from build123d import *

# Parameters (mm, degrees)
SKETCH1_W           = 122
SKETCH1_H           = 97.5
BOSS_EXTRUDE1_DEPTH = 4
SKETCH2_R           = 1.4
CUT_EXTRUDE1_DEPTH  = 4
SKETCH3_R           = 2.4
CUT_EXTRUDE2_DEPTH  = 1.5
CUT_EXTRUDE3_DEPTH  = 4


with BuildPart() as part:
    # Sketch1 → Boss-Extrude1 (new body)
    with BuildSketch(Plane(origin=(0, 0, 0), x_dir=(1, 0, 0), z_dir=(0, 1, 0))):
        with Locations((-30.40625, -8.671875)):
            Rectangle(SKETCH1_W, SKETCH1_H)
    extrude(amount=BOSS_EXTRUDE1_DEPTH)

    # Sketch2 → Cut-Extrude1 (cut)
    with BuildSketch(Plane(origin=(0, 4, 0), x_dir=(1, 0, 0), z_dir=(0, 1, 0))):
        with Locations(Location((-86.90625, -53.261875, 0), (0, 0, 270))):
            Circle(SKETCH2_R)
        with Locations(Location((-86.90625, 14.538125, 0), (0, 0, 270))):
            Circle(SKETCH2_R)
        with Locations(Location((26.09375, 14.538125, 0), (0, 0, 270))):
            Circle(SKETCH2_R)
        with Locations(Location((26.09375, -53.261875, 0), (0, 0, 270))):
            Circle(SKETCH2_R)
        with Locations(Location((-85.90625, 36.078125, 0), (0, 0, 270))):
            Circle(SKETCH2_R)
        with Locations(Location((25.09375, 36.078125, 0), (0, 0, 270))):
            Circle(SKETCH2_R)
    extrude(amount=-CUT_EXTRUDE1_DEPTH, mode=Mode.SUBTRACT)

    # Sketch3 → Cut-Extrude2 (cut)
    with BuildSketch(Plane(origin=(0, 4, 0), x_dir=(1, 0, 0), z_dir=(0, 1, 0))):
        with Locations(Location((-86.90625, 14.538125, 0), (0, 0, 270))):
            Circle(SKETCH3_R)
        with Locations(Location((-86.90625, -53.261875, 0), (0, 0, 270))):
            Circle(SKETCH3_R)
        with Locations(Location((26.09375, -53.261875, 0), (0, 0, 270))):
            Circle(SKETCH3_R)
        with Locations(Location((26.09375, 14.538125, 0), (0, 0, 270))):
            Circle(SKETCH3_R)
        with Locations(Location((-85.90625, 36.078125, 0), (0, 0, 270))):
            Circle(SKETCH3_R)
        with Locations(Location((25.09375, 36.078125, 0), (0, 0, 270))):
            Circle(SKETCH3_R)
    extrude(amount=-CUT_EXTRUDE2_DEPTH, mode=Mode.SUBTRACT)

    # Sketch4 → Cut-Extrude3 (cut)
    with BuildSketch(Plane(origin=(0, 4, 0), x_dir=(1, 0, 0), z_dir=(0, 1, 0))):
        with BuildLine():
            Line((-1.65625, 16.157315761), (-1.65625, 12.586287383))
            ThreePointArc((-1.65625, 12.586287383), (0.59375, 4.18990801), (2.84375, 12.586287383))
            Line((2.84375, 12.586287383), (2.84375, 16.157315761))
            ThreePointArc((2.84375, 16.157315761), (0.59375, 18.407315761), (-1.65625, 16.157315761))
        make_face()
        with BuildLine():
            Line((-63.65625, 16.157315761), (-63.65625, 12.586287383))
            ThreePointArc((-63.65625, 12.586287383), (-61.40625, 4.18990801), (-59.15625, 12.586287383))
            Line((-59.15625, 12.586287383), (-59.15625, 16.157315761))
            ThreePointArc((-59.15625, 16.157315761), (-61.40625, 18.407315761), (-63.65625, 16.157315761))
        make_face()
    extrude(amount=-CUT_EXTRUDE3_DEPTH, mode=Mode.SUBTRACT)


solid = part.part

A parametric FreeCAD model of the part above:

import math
import FreeCAD as App
import Part
import Sketcher

V = App.Vector
Q = App.Units.Quantity

doc = App.newDocument("Part")
body = doc.addObject("PartDesign::Body", "Body")

# Sketch on XZ plane
sketch1 = body.newObject("Sketcher::SketchObject", "Sketch")
sketch1.AttachmentSupport = (doc.getObject("XZ_Plane"), [""])
sketch1.MapMode = "FlatFace"
sketch1.addGeometry([
    Part.LineSegment(V(-91, -40, 0), V(-91, 57, 0)),
    Part.LineSegment(V(-91, 57, 0), V(31, 57, 0)),
    Part.LineSegment(V(31, 57, 0), V(31, -40, 0)),
    Part.LineSegment(V(31, -40, 0), V(-91, -40, 0)),
], False)
sketch1.addConstraint([
    Sketcher.Constraint("Coincident", 0, 2, 1, 1),
    Sketcher.Constraint("Coincident", 1, 2, 2, 1),
    Sketcher.Constraint("Coincident", 2, 2, 3, 1),
    Sketcher.Constraint("Coincident", 3, 2, 0, 1),
    Sketcher.Constraint("Vertical", 0),
    Sketcher.Constraint("Horizontal", 1),
    Sketcher.Constraint("Vertical", 2),
    Sketcher.Constraint("Horizontal", 3),
    Sketcher.Constraint("DistanceX", 1, 1, 1, 2, Q("122 mm")),
    Sketcher.Constraint("DistanceY", 0, 1, 0, 2, Q("97.5 mm")),
    Sketcher.Constraint("DistanceX", 0, 2, -1, 1, Q("91.40625 mm")),
    Sketcher.Constraint("DistanceY", -1, 1, 0, 2, Q("57.421875 mm")),
])
pad1 = body.newObject("PartDesign::Pad", "Pad")
pad1.Profile = sketch1
pad1.Length = 4
pad1.Reversed = True

# Sketch on XZ plane
sketch2 = body.newObject("Sketcher::SketchObject", "Sketch001")
sketch2.AttachmentSupport = (doc.getObject("XZ_Plane"), [""])
sketch2.MapMode = "FlatFace"
sketch2.AttachmentOffset = App.Placement(V(0, 0, -4), App.Rotation())
sketch2.addGeometry([
    Part.Circle(V(-86.9, 53.3, 0), V(0, 0, 1), 1.4),  # 0
    Part.Circle(V(-86.9, -14.5, 0), V(0, 0, 1), 1.4),  # 1
    Part.Circle(V(26.1, -14.5, 0), V(0, 0, 1), 1.4),  # 2
    Part.Circle(V(26.1, 53.3, 0), V(0, 0, 1), 1.4),  # 3
    Part.Circle(V(-85.9, -36.1, 0), V(0, 0, 1), 1.4),  # 4
    Part.Circle(V(25.1, -36.1, 0), V(0, 0, 1), 1.4),  # 5
], False)
sketch2.addConstraint([
    Sketcher.Constraint("Equal", 0, 1),
    Sketcher.Constraint("Equal", 1, 2),
    Sketcher.Constraint("Equal", 2, 3),
    Sketcher.Constraint("Equal", 3, 4),
    Sketcher.Constraint("Equal", 4, 5),
    Sketcher.Constraint("Horizontal", 1, 3, 2, 3),
    Sketcher.Constraint("Horizontal", 0, 3, 3, 3),
    Sketcher.Constraint("Horizontal", 4, 3, 5, 3),
    Sketcher.Constraint("Vertical", 0, 3, 1, 3),
    Sketcher.Constraint("Vertical", 2, 3, 3, 3),
    Sketcher.Constraint("Diameter", 0, Q("2.8 mm")),
    Sketcher.Constraint("DistanceX", 1, 3, 2, 3, Q("113 mm")),
    Sketcher.Constraint("DistanceX", 1, 3, 4, 3, Q("1 mm")),
    Sketcher.Constraint("DistanceX", 5, 3, 2, 3, Q("1 mm")),
    Sketcher.Constraint("DistanceY", 1, 3, 0, 3, Q("67.8 mm")),
    Sketcher.Constraint("DistanceY", 4, 3, 1, 3, Q("21.54 mm")),
    Sketcher.Constraint("DistanceX", 0, 3, -1, 1, Q("86.90625 mm")),
    Sketcher.Constraint("DistanceY", -1, 1, 0, 3, Q("53.261875 mm")),
])
pocket1 = body.newObject("PartDesign::Pocket", "Pocket")
pocket1.Profile = sketch2
pocket1.Length = 4
pocket1.Reversed = True

# Sketch on XZ plane
sketch3 = body.newObject("Sketcher::SketchObject", "Sketch002")
sketch3.AttachmentSupport = (doc.getObject("XZ_Plane"), [""])
sketch3.MapMode = "FlatFace"
sketch3.AttachmentOffset = App.Placement(V(0, 0, -4), App.Rotation())
sketch3.addGeometry([
    Part.Circle(V(-86.9, -14.5, 0), V(0, 0, 1), 2.4),  # 0
    Part.Circle(V(-86.9, 53.3, 0), V(0, 0, 1), 2.4),  # 1
    Part.Circle(V(26.1, 53.3, 0), V(0, 0, 1), 2.4),  # 2
    Part.Circle(V(26.1, -14.5, 0), V(0, 0, 1), 2.4),  # 3
    Part.Circle(V(-85.9, -36.1, 0), V(0, 0, 1), 2.4),  # 4
    Part.Circle(V(25.1, -36.1, 0), V(0, 0, 1), 2.4),  # 5
], False)
sketch3.addConstraint([
    Sketcher.Constraint("Equal", 0, 1),
    Sketcher.Constraint("Equal", 1, 2),
    Sketcher.Constraint("Equal", 2, 3),
    Sketcher.Constraint("Equal", 3, 4),
    Sketcher.Constraint("Equal", 4, 5),
    Sketcher.Constraint("Horizontal", 1, 3, 2, 3),
    Sketcher.Constraint("Horizontal", 0, 3, 3, 3),
    Sketcher.Constraint("Horizontal", 4, 3, 5, 3),
    Sketcher.Constraint("Vertical", 0, 3, 1, 3),
    Sketcher.Constraint("Vertical", 2, 3, 3, 3),
    Sketcher.Constraint("Diameter", 0, Q("4.8 mm")),
    Sketcher.Constraint("DistanceX", 1, 3, 2, 3, Q("113 mm")),
    Sketcher.Constraint("DistanceX", 0, 3, 4, 3, Q("1 mm")),
    Sketcher.Constraint("DistanceX", 5, 3, 3, 3, Q("1 mm")),
    Sketcher.Constraint("DistanceY", 0, 3, 1, 3, Q("67.8 mm")),
    Sketcher.Constraint("DistanceY", 4, 3, 0, 3, Q("21.54 mm")),
    Sketcher.Constraint("DistanceX", 0, 3, -1, 1, Q("86.90625 mm")),
    Sketcher.Constraint("DistanceY", 0, 3, -1, 1, Q("14.538125 mm")),
])
pocket2 = body.newObject("PartDesign::Pocket", "Pocket001")
pocket2.Profile = sketch3
pocket2.Length = 1.5
pocket2.Reversed = True

# Sketch on XZ plane
sketch4 = body.newObject("Sketcher::SketchObject", "Sketch003")
sketch4.AttachmentSupport = (doc.getObject("XZ_Plane"), [""])
sketch4.MapMode = "FlatFace"
sketch4.AttachmentOffset = App.Placement(V(0, 0, -4), App.Rotation())
sketch4.addGeometry([
    Part.LineSegment(V(-1.7, -16.2, 0), V(-1.7, -12.6, 0)),  # 0
    Part.ArcOfCircle(Part.Circle(V(0.6, -8.7, 0), V(0, 0, 1), 4.5), math.radians(-60), math.radians(240)),  # 1
    Part.LineSegment(V(2.8, -12.6, 0), V(2.8, -16.2, 0)),  # 2
    Part.ArcOfCircle(Part.Circle(V(0.6, -16.2, 0), V(0, 0, 1), 2.2), math.radians(180), math.radians(360)),  # 3
    Part.LineSegment(V(-63.7, -16.2, 0), V(-63.7, -12.6, 0)),  # 4
    Part.ArcOfCircle(Part.Circle(V(-61.4, -8.7, 0), V(0, 0, 1), 4.5), math.radians(-60), math.radians(240)),  # 5
    Part.LineSegment(V(-59.2, -12.6, 0), V(-59.2, -16.2, 0)),  # 6
    Part.ArcOfCircle(Part.Circle(V(-61.4, -16.2, 0), V(0, 0, 1), 2.2), math.radians(180), math.radians(360)),  # 7
], False)
sketch4.addConstraint([
    Sketcher.Constraint("Coincident", 0, 2, 1, 2),
    Sketcher.Constraint("Coincident", 1, 1, 2, 1),
    Sketcher.Constraint("Tangent", 2, 2, 3, 2),
    Sketcher.Constraint("Tangent", 3, 1, 0, 1),
    Sketcher.Constraint("Coincident", 4, 2, 5, 2),
    Sketcher.Constraint("Coincident", 5, 1, 6, 1),
    Sketcher.Constraint("Tangent", 6, 2, 7, 2),
    Sketcher.Constraint("Tangent", 7, 1, 4, 1),
    Sketcher.Constraint("Vertical", 0),
    Sketcher.Constraint("Vertical", 2),
    Sketcher.Constraint("Vertical", 4),
    Sketcher.Constraint("Vertical", 6),
    Sketcher.Constraint("Equal", 1, 5),
    Sketcher.Constraint("Equal", 3, 7),
    Sketcher.Constraint("Horizontal", 1, 3, 5, 3),
    Sketcher.Constraint("Horizontal", 3, 3, 7, 3),
    Sketcher.Constraint("Horizontal", 0, 2, 1, 1),
    Sketcher.Constraint("Horizontal", 1, 1, 4, 2),
    Sketcher.Constraint("Radius", 3, Q("2.25 mm")),
    Sketcher.Constraint("DistanceX", 5, 3, 1, 3, Q("62 mm")),
    Sketcher.Constraint("Radius", 1, Q("4.499659 mm")),
    Sketcher.Constraint("DistanceY", 0, 1, 0, 2, Q("3.571028 mm")),
    Sketcher.Constraint("DistanceX", -1, 1, 1, 3, Q("0.59375 mm")),
    Sketcher.Constraint("DistanceY", 1, 3, -1, 1, Q("8.689567 mm")),
])
pocket3 = body.newObject("PartDesign::Pocket", "Pocket002")
pocket3.Profile = sketch4
pocket3.Length = 4
pocket3.Reversed = True

doc.recompute()
